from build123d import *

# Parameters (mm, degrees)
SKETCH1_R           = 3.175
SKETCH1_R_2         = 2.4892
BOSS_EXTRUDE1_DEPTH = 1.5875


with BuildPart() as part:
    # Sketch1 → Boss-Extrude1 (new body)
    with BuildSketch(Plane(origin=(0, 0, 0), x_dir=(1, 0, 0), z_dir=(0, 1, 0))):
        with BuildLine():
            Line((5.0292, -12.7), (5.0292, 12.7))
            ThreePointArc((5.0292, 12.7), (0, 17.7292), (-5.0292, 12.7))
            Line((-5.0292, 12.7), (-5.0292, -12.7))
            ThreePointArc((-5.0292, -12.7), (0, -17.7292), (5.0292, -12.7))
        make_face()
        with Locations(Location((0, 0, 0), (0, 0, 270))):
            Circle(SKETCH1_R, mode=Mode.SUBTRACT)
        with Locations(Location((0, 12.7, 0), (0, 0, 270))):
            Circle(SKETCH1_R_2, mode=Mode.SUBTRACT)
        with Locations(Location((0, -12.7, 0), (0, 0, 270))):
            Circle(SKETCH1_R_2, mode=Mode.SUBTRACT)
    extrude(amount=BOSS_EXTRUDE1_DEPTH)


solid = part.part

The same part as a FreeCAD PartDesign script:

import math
import FreeCAD as App
import Part
import Sketcher

V = App.Vector
Q = App.Units.Quantity

doc = App.newDocument("Part")
body = doc.addObject("PartDesign::Body", "Body")

# Sketch on XZ plane
sketch1 = doc.addObject("Sketcher::SketchObject", "Sketch")
body.addObject(sketch1)
sketch1.AttachmentSupport = (doc.XZ_Plane, [""])
sketch1.MapMode = "FlatFace"
sketch1.addGeometry([
    Part.LineSegment(V(5.0292, 12.7, 0), V(5.0292, -12.7, 0)),  # 0
    Part.ArcOfCircle(Part.Circle(V(0, -12.7, 0), V(0, 0, 1), 5.0292), math.radians(180), math.radians(360)),  # 1
    Part.LineSegment(V(-5.0292, -12.7, 0), V(-5.0292, 12.7, 0)),  # 2
    Part.ArcOfCircle(Part.Circle(V(0, 12.7, 0), V(0, 0, 1), 5.0292), math.radians(0), math.radians(180)),  # 3
    Part.Circle(V(0, 12.7, 0), V(0, 0, 1), 2.4892),  # 4
    Part.Circle(V(0, 0, 0), V(0, 0, 1), 3.175),  # 5
    Part.Circle(V(0, -12.7, 0), V(0, 0, 1), 2.4892),  # 6
], False)
sketch1.addConstraint([
    Sketcher.Constraint("Tangent", 0, 2, 1, 2),
    Sketcher.Constraint("Tangent", 1, 1, 2, 1),
    Sketcher.Constraint("Tangent", 2, 2, 3, 2),
    Sketcher.Constraint("Tangent", 3, 1, 0, 1),
    Sketcher.Constraint("Vertical", 0),
    Sketcher.Constraint("Vertical", 2),
    Sketcher.Constraint("Coincident", 5, 3, -1, 1),
    Sketcher.Constraint("Coincident", 4, 3, 3, 3),
    Sketcher.Constraint("Coincident", 6, 3, 1, 3),
    Sketcher.Constraint("Equal", 4, 6),
    Sketcher.Constraint("Symmetric", 1, 3, 3, 3, -1, 1),
    Sketcher.Constraint("Diameter", 5, Q("0.25 in")),
    Sketcher.Constraint("DistanceY", 0, 2, 0, 1, Q("1 in")),
    Sketcher.Constraint("Diameter", 4, Q("0.196 in")),
    Sketcher.Constraint("Radius", 1, Q("0.198 in")),
])
pad1 = doc.addObject("PartDesign::Pad", "Pad")
body.addObject(pad1)
pad1.Profile = sketch1
pad1.Length = Q("0.0625 in")
pad1.Reversed = True

doc.recompute()
